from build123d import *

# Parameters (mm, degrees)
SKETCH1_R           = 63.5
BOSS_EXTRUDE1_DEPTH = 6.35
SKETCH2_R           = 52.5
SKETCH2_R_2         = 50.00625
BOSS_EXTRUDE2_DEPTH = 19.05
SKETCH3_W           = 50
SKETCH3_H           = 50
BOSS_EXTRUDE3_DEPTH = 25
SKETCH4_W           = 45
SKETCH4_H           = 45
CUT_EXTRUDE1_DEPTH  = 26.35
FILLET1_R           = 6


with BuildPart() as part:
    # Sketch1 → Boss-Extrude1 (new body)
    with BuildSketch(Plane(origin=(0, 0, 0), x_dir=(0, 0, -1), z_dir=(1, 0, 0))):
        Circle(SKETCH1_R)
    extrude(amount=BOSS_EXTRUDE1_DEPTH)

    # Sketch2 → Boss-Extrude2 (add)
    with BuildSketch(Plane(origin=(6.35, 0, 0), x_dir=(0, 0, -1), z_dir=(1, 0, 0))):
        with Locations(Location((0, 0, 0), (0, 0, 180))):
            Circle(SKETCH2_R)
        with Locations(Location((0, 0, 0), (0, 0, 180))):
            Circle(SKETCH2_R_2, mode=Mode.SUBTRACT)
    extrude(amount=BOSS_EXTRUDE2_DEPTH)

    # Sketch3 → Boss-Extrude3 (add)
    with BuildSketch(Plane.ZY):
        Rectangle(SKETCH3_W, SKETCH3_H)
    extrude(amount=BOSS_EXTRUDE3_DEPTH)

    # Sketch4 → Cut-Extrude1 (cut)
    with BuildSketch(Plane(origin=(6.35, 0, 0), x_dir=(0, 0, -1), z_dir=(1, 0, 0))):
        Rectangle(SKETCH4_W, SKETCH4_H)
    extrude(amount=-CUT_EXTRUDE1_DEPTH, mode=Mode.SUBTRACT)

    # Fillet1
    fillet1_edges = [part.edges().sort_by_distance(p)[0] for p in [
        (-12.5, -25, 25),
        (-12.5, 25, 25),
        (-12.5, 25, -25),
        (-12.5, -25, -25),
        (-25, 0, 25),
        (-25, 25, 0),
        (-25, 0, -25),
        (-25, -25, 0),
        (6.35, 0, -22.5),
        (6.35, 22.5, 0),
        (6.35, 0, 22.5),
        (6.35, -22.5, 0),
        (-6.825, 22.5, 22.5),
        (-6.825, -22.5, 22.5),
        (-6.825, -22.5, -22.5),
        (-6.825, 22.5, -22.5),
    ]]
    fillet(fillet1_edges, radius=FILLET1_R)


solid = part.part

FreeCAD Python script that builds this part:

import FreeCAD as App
import Part
import Sketcher
from FreeCAD import Vector
Q = App.Units.Quantity


def edges_at(feature, points):
    """Names of the edges that pass closest to the given points."""
    edges = feature.Shape.Edges
    near = lambda p: min(range(len(edges)), key=lambda i: edges[i].distToShape(Part.Vertex(*p))[0])
    return sorted({f"Edge{near(p) + 1}" for p in points})

doc = App.newDocument("Part")
params = doc.addObject("Spreadsheet::Sheet", "Params")
for row, (alias, value) in enumerate([
    ("sketch1_diameter", "127 mm"),
    ("pad1_length", "6.35 mm"),
    ("sketch2_diameter", "105 mm"),
    ("pad2_length", "19.05 mm"),
    ("sketch3_width", "50 mm"),
    ("pad3_length", "25 mm"),
    ("sketch4_width", "45 mm"),
    ("pocket1_length", "26.35 mm"),
    ("fillet_radius", "6 mm"),
], start=1):
    params.set(f"A{row}", alias)
    params.set(f"B{row}", "=" + value)
    params.setAlias(f"B{row}", alias)

body = doc.addObject("PartDesign::Body", "Body")

# Sketch on YZ plane
sketch1 = body.newObject("Sketcher::SketchObject", "Sketch")
sketch1.AttachmentSupport = (doc.getObject("YZ_Plane"), [""])
sketch1.MapMode = "FlatFace"
sketch1.addGeometry(Part.Circle(Vector(0, 0, 0), Vector(0, 0, 1), 63.5), False)
sketch1.addConstraint(Sketcher.Constraint("Coincident", 0, 3, -1, 1))
sketch1.addConstraint(Sketcher.Constraint("Diameter", 0, Q("127 mm")))
sketch1.setExpression("Constraints[1]", "Params.sketch1_diameter")
pad1 = body.newObject("PartDesign::Pad", "Pad")
pad1.Profile = sketch1
pad1.setExpression("Length", "Params.pad1_length")

# Sketch on YZ plane
sketch2 = body.newObject("Sketcher::SketchObject", "Sketch001")
sketch2.AttachmentSupport = (doc.getObject("YZ_Plane"), [""])
sketch2.MapMode = "FlatFace"
sketch2.AttachmentOffset = App.Placement(Vector(0, 0, 6.35), App.Rotation())
sketch2.addGeometry(Part.Circle(Vector(0, 0, 0), Vector(0, 0, 1), 52.5), False)
sketch2.addGeometry(Part.Circle(Vector(0, 0, 0), Vector(0, 0, 1), 50.00625), False)
sketch2.addConstraint(Sketcher.Constraint("Coincident", 0, 3, -1, 1))
sketch2.addConstraint(Sketcher.Constraint("Coincident", 1, 3, -1, 1))
sketch2.addConstraint(Sketcher.Constraint("Diameter", 0, Q("105 mm")))
sketch2.addConstraint(Sketcher.Constraint("Diameter", 1, Q("100.0125 mm")))
sketch2.setExpression("Constraints[2]", "Params.sketch2_diameter")
pad2 = body.newObject("PartDesign::Pad", "Pad001")
pad2.Profile = sketch2
pad2.setExpression("Length", "Params.pad2_length")

# Sketch on YZ plane
sketch3 = body.newObject("Sketcher::SketchObject", "Sketch002")
sketch3.AttachmentSupport = (doc.getObject("YZ_Plane"), [""])
sketch3.MapMode = "FlatFace"
sketch3.addGeometry(Part.LineSegment(Vector(25, -25, 0), Vector(-25, -25, 0)), False)
sketch3.addGeometry(Part.LineSegment(Vector(-25, -25, 0), Vector(-25, 25, 0)), False)
sketch3.addGeometry(Part.LineSegment(Vector(-25, 25, 0), Vector(25, 25, 0)), False)
sketch3.addGeometry(Part.LineSegment(Vector(25, 25, 0), Vector(25, -25, 0)), False)
sketch3.addConstraint(Sketcher.Constraint("Coincident", 0, 2, 1, 1))
sketch3.addConstraint(Sketcher.Constraint("Coincident", 1, 2, 2, 1))
sketch3.addConstraint(Sketcher.Constraint("Coincident", 2, 2, 3, 1))
sketch3.addConstraint(Sketcher.Constraint("Coincident", 3, 2, 0, 1))
sketch3.addConstraint(Sketcher.Constraint("Horizontal", 0))
sketch3.addConstraint(Sketcher.Constraint("Vertical", 1))
sketch3.addConstraint(Sketcher.Constraint("Horizontal", 2))
sketch3.addConstraint(Sketcher.Constraint("Vertical", 3))
sketch3.addConstraint(Sketcher.Constraint("Symmetric", 0, 2, 2, 2, -1, 1))
sketch3.addConstraint(Sketcher.Constraint("Equal", 2, 1))
sketch3.addConstraint(Sketcher.Constraint("DistanceX", 0, 2, 0, 1, Q("50 mm")))
sketch3.setExpression("Constraints[10]", "Params.sketch3_width")
pad3 = body.newObject("PartDesign::Pad", "Pad002")
pad3.Profile = sketch3
pad3.setExpression("Length", "Params.pad3_length")
pad3.Reversed = True

# Sketch on YZ plane
sketch4 = body.newObject("Sketcher::SketchObject", "Sketch003")
sketch4.AttachmentSupport = (doc.getObject("YZ_Plane"), [""])
sketch4.MapMode = "FlatFace"
sketch4.AttachmentOffset = App.Placement(Vector(0, 0, 6.35), App.Rotation())
sketch4.addGeometry(Part.LineSegment(Vector(22.5, 22.5, 0), Vector(-22.5, 22.5, 0)), False)
sketch4.addGeometry(Part.LineSegment(Vector(-22.5, 22.5, 0), Vector(-22.5, -22.5, 0)), False)
sketch4.addGeometry(Part.LineSegment(Vector(-22.5, -22.5, 0), Vector(22.5, -22.5, 0)), False)
sketch4.addGeometry(Part.LineSegment(Vector(22.5, -22.5, 0), Vector(22.5, 22.5, 0)), False)
sketch4.addConstraint(Sketcher.Constraint("Coincident", 0, 2, 1, 1))
sketch4.addConstraint(Sketcher.Constraint("Coincident", 1, 2, 2, 1))
sketch4.addConstraint(Sketcher.Constraint("Coincident", 2, 2, 3, 1))
sketch4.addConstraint(Sketcher.Constraint("Coincident", 3, 2, 0, 1))
sketch4.addConstraint(Sketcher.Constraint("Horizontal", 0))
sketch4.addConstraint(Sketcher.Constraint("Vertical", 1))
sketch4.addConstraint(Sketcher.Constraint("Horizontal", 2))
sketch4.addConstraint(Sketcher.Constraint("Vertical", 3))
sketch4.addConstraint(Sketcher.Constraint("Symmetric", 0, 2, 2, 2, -1, 1))
sketch4.addConstraint(Sketcher.Constraint("Equal", 2, 1))
sketch4.addConstraint(Sketcher.Constraint("DistanceX", 0, 2, 0, 1, Q("45 mm")))
sketch4.setExpression("Constraints[10]", "Params.sketch4_width")
pocket1 = body.newObject("PartDesign::Pocket", "Pocket")
pocket1.Profile = sketch4
pocket1.setExpression("Length", "Params.pocket1_length")
doc.recompute()

fillet = body.newObject("PartDesign::Fillet", "Fillet")
fillet.Base = (pocket1, edges_at(pocket1, [
    (-12.5, -25, 25),
    (-12.5, 25, 25),
    (-12.5, 25, -25),
    (-12.5, -25, -25),
    (-25, 0, 25),
    (-25, 25, 0),
    (-25, 0, -25),
    (-25, -25, 0),
    (6.35, 0, -22.5),
    (6.35, 22.5, 0),
    (6.35, 0, 22.5),
    (6.35, -22.5, 0),
    (-6.825, 22.5, 22.5),
    (-6.825, -22.5, 22.5),
    (-6.825, -22.5, -22.5),
    (-6.825, 22.5, -22.5),
]))
fillet.setExpression("Radius", "Params.fillet_radius")

doc.recompute()
